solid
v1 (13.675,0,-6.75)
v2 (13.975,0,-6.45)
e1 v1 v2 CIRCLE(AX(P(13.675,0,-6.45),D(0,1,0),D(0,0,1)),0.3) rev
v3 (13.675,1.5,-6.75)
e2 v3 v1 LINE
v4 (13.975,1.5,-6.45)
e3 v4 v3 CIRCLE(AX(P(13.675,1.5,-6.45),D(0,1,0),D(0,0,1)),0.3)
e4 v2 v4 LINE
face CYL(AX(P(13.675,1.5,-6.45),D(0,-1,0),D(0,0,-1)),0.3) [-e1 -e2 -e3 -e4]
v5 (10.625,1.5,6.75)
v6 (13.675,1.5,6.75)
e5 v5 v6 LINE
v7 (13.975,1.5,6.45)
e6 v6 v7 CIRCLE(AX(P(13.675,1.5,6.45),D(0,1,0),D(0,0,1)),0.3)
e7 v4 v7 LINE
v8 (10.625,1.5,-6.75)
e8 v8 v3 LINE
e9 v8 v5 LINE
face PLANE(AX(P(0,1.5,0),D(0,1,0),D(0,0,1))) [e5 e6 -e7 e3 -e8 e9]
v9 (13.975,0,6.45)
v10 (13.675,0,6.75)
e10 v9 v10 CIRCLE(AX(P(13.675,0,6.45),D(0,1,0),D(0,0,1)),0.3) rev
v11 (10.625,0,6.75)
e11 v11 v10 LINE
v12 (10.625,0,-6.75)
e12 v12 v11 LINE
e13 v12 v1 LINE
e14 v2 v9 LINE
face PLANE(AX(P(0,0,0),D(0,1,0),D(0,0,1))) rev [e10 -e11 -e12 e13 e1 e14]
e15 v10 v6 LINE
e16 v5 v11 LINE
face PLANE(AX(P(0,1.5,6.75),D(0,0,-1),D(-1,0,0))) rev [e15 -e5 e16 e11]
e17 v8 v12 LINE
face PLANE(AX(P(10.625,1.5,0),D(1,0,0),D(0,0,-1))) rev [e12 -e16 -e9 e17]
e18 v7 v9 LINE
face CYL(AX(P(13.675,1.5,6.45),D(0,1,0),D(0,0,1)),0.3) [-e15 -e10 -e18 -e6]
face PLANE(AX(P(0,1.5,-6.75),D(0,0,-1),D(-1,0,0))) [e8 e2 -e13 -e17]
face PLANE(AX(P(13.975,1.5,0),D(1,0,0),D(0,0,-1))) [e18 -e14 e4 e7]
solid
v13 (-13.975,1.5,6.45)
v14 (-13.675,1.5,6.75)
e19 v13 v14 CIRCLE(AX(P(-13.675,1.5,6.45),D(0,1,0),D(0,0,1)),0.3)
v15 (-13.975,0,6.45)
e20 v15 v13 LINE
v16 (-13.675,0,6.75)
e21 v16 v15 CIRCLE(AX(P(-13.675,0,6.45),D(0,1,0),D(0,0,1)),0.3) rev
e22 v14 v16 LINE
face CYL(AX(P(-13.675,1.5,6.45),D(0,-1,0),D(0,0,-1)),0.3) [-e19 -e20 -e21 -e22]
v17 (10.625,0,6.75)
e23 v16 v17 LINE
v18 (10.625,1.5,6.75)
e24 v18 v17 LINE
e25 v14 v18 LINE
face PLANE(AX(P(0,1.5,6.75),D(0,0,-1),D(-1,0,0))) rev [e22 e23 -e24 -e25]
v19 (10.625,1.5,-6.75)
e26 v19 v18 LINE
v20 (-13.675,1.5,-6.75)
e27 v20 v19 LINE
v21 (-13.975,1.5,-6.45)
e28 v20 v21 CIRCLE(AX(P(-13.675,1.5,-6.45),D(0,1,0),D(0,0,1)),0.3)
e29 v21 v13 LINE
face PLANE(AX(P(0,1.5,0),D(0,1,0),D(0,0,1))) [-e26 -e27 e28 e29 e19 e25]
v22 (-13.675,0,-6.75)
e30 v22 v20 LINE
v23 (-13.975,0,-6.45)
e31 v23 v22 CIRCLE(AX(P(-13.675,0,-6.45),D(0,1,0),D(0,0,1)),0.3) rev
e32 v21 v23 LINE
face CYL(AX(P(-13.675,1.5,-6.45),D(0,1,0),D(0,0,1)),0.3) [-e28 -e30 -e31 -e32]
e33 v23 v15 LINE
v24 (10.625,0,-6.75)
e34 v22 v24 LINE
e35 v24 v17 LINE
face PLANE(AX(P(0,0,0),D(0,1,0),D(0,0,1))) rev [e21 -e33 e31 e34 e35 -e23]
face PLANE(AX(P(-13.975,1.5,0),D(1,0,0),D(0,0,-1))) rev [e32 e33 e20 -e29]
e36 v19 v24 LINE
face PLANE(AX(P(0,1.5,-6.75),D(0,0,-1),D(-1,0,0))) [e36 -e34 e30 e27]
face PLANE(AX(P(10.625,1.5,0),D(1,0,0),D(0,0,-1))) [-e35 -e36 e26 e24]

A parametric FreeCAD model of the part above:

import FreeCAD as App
import Part
import Sketcher


def edges_at(feature, points):
    """Names of the edges that pass closest to the given points."""
    edges = feature.Shape.Edges
    near = lambda p: min(range(len(edges)), key=lambda i: edges[i].distToShape(Part.Vertex(*p))[0])
    return sorted({f"Edge{near(p) + 1}" for p in points})

doc = App.newDocument("Part")
body = doc.addObject("PartDesign::Body", "Body")

sketch1 = doc.addObject("Sketcher::SketchObject", "Sketch")
body.addObject(sketch1)
sketch1.AttachmentSupport = (doc.XZ_Plane, [""])
sketch1.MapMode = "FlatFace"
sketch1.addGeometry(Part.LineSegment(App.Vector(-14, -7, 0), App.Vector(-14, 7, 0)), False)
sketch1.addGeometry(Part.LineSegment(App.Vector(-14, 7, 0), App.Vector(11, 7, 0)), False)
sketch1.addGeometry(Part.LineSegment(App.Vector(11, 7, 0), App.Vector(11, -7, 0)), False)
sketch1.addGeometry(Part.LineSegment(App.Vector(11, -7, 0), App.Vector(-14, -7, 0)), False)
sketch1.addConstraint(Sketcher.Constraint("Coincident", 0, 2, 1, 1))
sketch1.addConstraint(Sketcher.Constraint("Coincident", 1, 2, 2, 1))
sketch1.addConstraint(Sketcher.Constraint("Coincident", 2, 2, 3, 1))
sketch1.addConstraint(Sketcher.Constraint("Coincident", 3, 2, 0, 1))
sketch1.addConstraint(Sketcher.Constraint("Vertical", 0))
sketch1.addConstraint(Sketcher.Constraint("Horizontal", 1))
sketch1.addConstraint(Sketcher.Constraint("Vertical", 2))
sketch1.addConstraint(Sketcher.Constraint("Horizontal", 3))
sketch1.addConstraint(Sketcher.Constraint("DistanceX", 1, 1, 1, 2, 24.6))
sketch1.addConstraint(Sketcher.Constraint("DistanceY", 0, 1, 0, 2, 13.5))
sketch1.addConstraint(Sketcher.Constraint("DistanceY", -1, 1, 0, 2, 6.75))
sketch1.addConstraint(Sketcher.Constraint("DistanceX", 0, 2, -1, 1, 13.975))
pad1 = doc.addObject("PartDesign::Pad", "Pad")
body.addObject(pad1)
pad1.Profile = sketch1
pad1.Length = 1.5
pad1.Reversed = True
doc.recompute()

fillet = doc.addObject("PartDesign::Fillet", "Fillet")
body.addObject(fillet)
fillet.Base = (pad1, edges_at(pad1, [(-13.975, 0.75, 6.75), (-13.975, 0.75, -6.75)]))
fillet.Radius = 0.3
body2 = doc.addObject("PartDesign::Body", "Body001")

sketch2 = doc.addObject("Sketcher::SketchObject", "Sketch001")
body2.addObject(sketch2)
sketch2.AttachmentSupport = (doc.getObject("XZ_Plane001"), [""])
sketch2.MapMode = "FlatFace"
sketch2.addGeometry(Part.LineSegment(App.Vector(10.6, -6.8, 0), App.Vector(10.6, 6.8, 0)), False)
sketch2.addGeometry(Part.LineSegment(App.Vector(10.6, 6.8, 0), App.Vector(14, 6.8, 0)), False)
sketch2.addGeometry(Part.LineSegment(App.Vector(14, 6.8, 0), App.Vector(14, -6.8, 0)), False)
sketch2.addGeometry(Part.LineSegment(App.Vector(14, -6.8, 0), App.Vector(10.6, -6.8, 0)), False)
sketch2.addConstraint(Sketcher.Constraint("Coincident", 0, 2, 1, 1))
sketch2.addConstraint(Sketcher.Constraint("Coincident", 1, 2, 2, 1))
sketch2.addConstraint(Sketcher.Constraint("Coincident", 2, 2, 3, 1))
sketch2.addConstraint(Sketcher.Constraint("Coincident", 3, 2, 0, 1))
sketch2.addConstraint(Sketcher.Constraint("Vertical", 0))
sketch2.addConstraint(Sketcher.Constraint("Horizontal", 1))
sketch2.addConstraint(Sketcher.Constraint("Vertical", 2))
sketch2.addConstraint(Sketcher.Constraint("Horizontal", 3))
sketch2.addConstraint(Sketcher.Constraint("DistanceY", 0, 1, 0, 2, 13.5))
sketch2.addConstraint(Sketcher.Constraint("DistanceX", 1, 1, 1, 2, 3.35))
sketch2.addConstraint(Sketcher.Constraint("DistanceY", -1, 1, 0, 2, 6.75))
sketch2.addConstraint(Sketcher.Constraint("DistanceX", -1, 1, 0, 2, 10.625))
pad2 = doc.addObject("PartDesign::Pad", "Pad001")
body2.addObject(pad2)
pad2.Profile = sketch2
pad2.Length = 1.5
pad2.Reversed = True
doc.recompute()

fillet2 = doc.addObject("PartDesign::Fillet", "Fillet001")
body2.addObject(fillet2)
fillet2.Base = (pad2, edges_at(pad2, [(13.975, 0.75, -6.75), (13.975, 0.75, 6.75)]))
fillet2.Radius = 0.3

doc.recompute()
